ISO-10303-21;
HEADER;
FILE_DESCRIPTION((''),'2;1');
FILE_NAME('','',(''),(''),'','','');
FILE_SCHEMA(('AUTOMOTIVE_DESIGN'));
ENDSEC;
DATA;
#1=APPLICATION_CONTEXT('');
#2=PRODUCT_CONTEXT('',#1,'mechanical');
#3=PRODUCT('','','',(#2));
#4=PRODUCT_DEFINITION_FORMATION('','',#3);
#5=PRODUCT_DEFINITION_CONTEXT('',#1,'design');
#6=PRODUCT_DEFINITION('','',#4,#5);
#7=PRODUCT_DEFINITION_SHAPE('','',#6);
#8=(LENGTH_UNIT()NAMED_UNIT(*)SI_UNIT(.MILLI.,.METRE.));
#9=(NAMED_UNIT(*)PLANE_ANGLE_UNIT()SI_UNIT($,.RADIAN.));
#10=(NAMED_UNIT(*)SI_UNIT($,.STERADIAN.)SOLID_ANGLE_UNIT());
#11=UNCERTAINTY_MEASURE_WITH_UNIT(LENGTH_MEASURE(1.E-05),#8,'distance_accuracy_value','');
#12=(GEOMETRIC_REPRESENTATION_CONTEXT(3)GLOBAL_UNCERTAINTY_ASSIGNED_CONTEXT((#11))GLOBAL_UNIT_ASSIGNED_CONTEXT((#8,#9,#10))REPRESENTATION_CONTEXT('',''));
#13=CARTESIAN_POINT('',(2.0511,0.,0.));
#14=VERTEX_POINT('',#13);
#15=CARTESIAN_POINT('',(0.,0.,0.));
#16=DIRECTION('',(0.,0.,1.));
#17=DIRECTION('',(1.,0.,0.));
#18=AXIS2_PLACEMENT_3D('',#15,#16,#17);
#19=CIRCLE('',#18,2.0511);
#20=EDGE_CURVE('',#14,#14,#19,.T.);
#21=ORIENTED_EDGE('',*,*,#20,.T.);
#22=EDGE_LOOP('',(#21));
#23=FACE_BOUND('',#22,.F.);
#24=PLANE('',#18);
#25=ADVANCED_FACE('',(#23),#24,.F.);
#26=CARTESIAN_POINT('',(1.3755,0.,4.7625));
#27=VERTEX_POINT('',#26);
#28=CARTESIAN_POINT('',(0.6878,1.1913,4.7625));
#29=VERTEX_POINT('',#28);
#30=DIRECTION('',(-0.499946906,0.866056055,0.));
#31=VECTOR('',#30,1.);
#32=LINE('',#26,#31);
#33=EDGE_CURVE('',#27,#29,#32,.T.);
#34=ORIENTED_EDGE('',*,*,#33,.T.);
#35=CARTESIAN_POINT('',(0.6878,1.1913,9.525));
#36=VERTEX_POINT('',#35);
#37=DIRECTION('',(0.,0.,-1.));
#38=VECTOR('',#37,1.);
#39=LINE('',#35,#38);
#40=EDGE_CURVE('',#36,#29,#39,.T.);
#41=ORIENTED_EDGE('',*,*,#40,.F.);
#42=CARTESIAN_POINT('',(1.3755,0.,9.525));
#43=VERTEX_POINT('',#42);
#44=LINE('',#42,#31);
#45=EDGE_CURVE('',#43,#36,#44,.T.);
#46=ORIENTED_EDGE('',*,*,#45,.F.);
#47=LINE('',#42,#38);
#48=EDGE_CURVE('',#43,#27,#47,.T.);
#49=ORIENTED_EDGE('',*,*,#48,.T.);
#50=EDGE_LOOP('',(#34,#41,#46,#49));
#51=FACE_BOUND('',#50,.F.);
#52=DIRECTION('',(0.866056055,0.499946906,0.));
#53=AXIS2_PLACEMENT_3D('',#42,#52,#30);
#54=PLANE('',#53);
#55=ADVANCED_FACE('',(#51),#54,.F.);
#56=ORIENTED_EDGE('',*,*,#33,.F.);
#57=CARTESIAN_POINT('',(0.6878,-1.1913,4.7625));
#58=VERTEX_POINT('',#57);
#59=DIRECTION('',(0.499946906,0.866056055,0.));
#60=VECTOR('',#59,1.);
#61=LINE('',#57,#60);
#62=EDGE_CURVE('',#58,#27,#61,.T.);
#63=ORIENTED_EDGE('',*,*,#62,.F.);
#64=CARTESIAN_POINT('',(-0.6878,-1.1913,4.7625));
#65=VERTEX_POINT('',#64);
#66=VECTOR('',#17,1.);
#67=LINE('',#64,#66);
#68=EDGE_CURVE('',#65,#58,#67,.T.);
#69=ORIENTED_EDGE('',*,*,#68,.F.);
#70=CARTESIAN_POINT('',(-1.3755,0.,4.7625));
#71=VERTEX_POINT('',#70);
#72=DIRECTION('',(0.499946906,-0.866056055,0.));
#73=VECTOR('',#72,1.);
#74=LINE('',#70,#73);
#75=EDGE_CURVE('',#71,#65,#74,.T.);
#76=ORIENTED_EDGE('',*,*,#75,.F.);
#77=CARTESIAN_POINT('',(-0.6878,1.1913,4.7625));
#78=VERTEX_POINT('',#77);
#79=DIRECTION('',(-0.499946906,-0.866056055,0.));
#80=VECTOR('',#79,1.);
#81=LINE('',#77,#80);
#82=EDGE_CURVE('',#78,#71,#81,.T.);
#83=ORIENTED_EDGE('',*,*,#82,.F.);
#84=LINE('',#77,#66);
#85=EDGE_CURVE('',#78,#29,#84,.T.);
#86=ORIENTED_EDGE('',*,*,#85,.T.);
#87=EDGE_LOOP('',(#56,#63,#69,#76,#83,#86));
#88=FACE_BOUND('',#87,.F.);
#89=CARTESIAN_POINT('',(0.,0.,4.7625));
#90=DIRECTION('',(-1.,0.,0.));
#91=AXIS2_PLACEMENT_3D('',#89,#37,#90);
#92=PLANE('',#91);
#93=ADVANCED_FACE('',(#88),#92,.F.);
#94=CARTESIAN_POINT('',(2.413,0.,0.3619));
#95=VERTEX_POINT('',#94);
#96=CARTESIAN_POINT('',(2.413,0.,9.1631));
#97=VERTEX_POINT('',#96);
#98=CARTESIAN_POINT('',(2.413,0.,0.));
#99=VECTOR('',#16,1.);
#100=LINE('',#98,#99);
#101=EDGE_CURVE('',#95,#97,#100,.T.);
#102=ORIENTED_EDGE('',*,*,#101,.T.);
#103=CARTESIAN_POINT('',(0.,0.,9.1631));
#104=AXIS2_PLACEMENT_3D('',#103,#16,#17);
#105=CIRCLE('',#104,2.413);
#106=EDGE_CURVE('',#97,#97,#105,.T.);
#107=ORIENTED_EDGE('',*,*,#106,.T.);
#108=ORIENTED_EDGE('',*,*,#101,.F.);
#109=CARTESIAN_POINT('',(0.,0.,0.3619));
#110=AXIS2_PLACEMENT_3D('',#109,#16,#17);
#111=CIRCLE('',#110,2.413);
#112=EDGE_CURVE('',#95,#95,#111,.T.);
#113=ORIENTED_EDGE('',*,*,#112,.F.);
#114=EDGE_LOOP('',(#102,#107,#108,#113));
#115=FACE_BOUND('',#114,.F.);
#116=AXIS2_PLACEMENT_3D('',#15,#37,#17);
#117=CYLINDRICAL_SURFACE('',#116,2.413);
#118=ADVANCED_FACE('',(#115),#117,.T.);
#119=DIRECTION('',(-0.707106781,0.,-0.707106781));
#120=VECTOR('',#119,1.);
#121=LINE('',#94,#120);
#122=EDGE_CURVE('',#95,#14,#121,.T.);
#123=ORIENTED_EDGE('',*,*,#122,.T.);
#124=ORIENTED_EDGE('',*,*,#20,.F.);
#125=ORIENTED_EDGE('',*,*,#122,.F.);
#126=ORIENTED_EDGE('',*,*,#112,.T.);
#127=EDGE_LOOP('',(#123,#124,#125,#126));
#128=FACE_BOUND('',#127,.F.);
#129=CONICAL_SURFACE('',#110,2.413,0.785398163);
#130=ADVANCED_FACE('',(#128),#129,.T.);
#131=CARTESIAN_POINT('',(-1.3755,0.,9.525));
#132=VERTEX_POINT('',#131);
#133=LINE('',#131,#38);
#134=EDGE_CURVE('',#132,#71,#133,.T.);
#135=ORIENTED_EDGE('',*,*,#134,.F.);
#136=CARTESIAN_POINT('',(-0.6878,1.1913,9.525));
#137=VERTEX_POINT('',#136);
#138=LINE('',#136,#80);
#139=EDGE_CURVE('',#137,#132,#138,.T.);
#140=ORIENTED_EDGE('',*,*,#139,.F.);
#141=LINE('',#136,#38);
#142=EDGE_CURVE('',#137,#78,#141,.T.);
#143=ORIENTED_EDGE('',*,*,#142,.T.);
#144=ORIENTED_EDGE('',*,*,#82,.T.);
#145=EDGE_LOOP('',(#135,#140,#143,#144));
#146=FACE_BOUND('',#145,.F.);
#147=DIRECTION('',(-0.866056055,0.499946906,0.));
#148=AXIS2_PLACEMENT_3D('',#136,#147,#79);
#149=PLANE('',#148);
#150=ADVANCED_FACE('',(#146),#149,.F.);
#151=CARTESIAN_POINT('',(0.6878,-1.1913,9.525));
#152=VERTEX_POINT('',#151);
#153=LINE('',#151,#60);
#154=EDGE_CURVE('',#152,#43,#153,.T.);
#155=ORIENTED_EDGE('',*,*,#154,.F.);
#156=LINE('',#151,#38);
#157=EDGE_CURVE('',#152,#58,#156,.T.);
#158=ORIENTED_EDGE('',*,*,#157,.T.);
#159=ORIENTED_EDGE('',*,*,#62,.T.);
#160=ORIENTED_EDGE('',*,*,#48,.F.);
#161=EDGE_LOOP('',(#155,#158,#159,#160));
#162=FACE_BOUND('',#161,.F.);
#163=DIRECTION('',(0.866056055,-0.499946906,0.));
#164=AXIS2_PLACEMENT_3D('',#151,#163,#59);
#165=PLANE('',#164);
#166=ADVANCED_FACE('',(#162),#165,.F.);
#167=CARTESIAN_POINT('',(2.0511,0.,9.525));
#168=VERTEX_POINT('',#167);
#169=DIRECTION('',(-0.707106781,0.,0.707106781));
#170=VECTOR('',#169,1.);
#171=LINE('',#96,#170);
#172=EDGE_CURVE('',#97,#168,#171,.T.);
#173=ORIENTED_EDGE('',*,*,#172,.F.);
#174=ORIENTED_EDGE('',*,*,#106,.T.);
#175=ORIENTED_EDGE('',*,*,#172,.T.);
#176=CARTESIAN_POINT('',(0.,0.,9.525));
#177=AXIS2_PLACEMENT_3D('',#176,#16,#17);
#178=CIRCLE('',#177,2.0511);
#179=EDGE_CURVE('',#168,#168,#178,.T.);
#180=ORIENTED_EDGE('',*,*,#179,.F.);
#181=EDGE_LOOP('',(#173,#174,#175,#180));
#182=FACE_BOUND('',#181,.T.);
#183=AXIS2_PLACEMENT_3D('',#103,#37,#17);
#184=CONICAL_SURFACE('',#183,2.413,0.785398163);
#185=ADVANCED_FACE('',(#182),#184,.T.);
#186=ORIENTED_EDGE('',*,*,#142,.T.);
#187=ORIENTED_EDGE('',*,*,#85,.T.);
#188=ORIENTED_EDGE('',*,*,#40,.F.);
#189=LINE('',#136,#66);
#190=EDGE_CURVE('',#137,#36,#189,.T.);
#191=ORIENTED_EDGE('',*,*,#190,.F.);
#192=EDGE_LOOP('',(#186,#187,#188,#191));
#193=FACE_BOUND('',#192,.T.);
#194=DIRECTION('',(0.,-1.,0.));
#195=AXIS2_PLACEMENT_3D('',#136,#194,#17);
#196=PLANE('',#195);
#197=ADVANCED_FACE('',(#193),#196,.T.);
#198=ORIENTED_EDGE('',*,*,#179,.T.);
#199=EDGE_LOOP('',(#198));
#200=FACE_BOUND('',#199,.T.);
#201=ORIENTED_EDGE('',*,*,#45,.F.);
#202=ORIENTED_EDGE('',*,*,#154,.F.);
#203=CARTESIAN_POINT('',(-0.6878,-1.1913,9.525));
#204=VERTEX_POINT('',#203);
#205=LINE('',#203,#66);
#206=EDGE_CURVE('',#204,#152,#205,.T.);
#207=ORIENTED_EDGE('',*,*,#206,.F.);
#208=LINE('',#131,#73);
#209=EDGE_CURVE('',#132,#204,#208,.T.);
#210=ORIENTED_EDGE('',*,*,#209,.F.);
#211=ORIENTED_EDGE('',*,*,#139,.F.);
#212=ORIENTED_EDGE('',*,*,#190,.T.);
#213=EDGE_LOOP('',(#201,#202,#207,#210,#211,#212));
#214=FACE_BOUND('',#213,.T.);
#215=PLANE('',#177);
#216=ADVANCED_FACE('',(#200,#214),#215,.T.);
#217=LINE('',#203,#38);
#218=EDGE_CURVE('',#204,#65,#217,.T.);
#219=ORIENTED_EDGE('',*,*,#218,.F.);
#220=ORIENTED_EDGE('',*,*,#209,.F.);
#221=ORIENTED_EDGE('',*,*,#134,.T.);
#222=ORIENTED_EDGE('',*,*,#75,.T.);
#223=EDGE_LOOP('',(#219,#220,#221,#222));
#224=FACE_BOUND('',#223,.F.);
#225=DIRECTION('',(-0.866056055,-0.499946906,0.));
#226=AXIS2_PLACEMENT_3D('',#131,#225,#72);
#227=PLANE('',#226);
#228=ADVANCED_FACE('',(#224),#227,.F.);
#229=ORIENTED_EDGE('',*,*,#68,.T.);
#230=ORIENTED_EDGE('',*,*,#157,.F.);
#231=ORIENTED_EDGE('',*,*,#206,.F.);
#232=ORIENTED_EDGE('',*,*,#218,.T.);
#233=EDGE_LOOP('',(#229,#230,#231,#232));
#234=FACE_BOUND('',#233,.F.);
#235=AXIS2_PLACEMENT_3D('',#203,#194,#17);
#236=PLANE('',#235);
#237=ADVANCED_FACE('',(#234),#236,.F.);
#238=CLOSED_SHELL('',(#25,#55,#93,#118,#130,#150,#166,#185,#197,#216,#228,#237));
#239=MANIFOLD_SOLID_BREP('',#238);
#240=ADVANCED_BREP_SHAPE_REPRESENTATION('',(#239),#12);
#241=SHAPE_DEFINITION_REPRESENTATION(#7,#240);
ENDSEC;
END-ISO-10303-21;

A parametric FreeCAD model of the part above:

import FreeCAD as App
import Part
import Sketcher
Q = App.Units.Quantity


def edges_at(feature, points):
    """Names of the edges that pass closest to the given points."""
    edges = feature.Shape.Edges
    near = lambda p: min(range(len(edges)), key=lambda i: edges[i].distToShape(Part.Vertex(*p))[0])
    return sorted({f"Edge{near(p) + 1}" for p in points})


def add_polygon(sketch, points):
    """Adds a closed chain of lines whose ends are joined by coincident constraints."""
    first, n = sketch.GeometryCount, len(points)
    for a, b in zip(points, points[1:] + points[:1]):
        sketch.addGeometry(Part.LineSegment(App.Vector(*a, 0), App.Vector(*b, 0)), False)
    for i in range(n):
        sketch.addConstraint(Sketcher.Constraint("Coincident", first + i, 2, first + (i + 1) % n, 1))

doc = App.newDocument("Part")
params = doc.addObject("Spreadsheet::Sheet", "Params")
for row, (alias, value) in enumerate([
    ("sketch1_diameter", "0.19 in"),
    ("pad1_length", "0.375 in"),
    ("chamfer_size", "0.3619 mm"),
    ("pocket1_length", "0.1875 in"),
], start=1):
    params.set(f"A{row}", alias)
    params.set(f"B{row}", "=" + value)
    params.setAlias(f"B{row}", alias)

body = doc.addObject("PartDesign::Body", "Body")

# Sketch on XY plane
sketch1 = body.newObject("Sketcher::SketchObject", "Sketch")
sketch1.AttachmentSupport = (doc.getObject("XY_Plane"), [""])
sketch1.MapMode = "FlatFace"
sketch1.addGeometry(Part.Circle(App.Vector(0, 0, 0), App.Vector(0, 0, 1), 2.413), False)
sketch1.addConstraint(Sketcher.Constraint("Coincident", 0, 3, -1, 1))
sketch1.addConstraint(Sketcher.Constraint("Diameter", 0, Q("0.19 in")))
sketch1.setExpression("Constraints[1]", "Params.sketch1_diameter")
pad1 = body.newObject("PartDesign::Pad", "Pad")
pad1.Profile = sketch1
pad1.setExpression("Length", "Params.pad1_length")
doc.recompute()

chamfer = body.newObject("PartDesign::Chamfer", "Chamfer")
chamfer.Base = (pad1, edges_at(pad1, [(-2.413, 0, 0), (-2.413, 0, 9.525)]))
chamfer.setExpression("Size", "Params.chamfer_size")

# Sketch on XY plane
sketch2 = body.newObject("Sketcher::SketchObject", "Sketch001")
sketch2.AttachmentSupport = (doc.getObject("XY_Plane"), [""])
sketch2.MapMode = "FlatFace"
sketch2.AttachmentOffset = App.Placement(App.Vector(0, 0, 0.375 * 25.4), App.Rotation())
add_polygon(sketch2, [(0.6878, 1.1913), (-0.6878, 1.1913), (-1.3755, 0), (-0.6878, -1.1913), (0.6878, -1.1913), (1.3755, 0)])  # lines 0-5
sketch2.addConstraint(Sketcher.Constraint("Horizontal", 0))
sketch2.addConstraint(Sketcher.Constraint("Horizontal", 3))
sketch2.addConstraint(Sketcher.Constraint("Symmetric", 0, 2, 3, 2, -1, 1))
sketch2.addConstraint(Sketcher.Constraint("Symmetric", 1, 2, 4, 2, -1, 1))
sketch2.addConstraint(Sketcher.Constraint("PointOnObject", 1, 2, -1))
sketch2.addConstraint(Sketcher.Constraint("Parallel", 2, 5))
sketch2.addConstraint(Sketcher.Constraint("Vertical", 0, 2, 2, 2))
sketch2.addConstraint(Sketcher.Constraint("DistanceX", 0, 2, 0, 1, Q("1.3756 mm")))
sketch2.addConstraint(Sketcher.Constraint("DistanceY", -1, 1, 0, 2, Q("0.0469 in")))
sketch2.addConstraint(Sketcher.Constraint("DistanceX", 1, 2, 4, 2, Q("0.1083 in")))
pocket1 = body.newObject("PartDesign::Pocket", "Pocket")
pocket1.Profile = sketch2
pocket1.setExpression("Length", "Params.pocket1_length")

doc.recompute()
